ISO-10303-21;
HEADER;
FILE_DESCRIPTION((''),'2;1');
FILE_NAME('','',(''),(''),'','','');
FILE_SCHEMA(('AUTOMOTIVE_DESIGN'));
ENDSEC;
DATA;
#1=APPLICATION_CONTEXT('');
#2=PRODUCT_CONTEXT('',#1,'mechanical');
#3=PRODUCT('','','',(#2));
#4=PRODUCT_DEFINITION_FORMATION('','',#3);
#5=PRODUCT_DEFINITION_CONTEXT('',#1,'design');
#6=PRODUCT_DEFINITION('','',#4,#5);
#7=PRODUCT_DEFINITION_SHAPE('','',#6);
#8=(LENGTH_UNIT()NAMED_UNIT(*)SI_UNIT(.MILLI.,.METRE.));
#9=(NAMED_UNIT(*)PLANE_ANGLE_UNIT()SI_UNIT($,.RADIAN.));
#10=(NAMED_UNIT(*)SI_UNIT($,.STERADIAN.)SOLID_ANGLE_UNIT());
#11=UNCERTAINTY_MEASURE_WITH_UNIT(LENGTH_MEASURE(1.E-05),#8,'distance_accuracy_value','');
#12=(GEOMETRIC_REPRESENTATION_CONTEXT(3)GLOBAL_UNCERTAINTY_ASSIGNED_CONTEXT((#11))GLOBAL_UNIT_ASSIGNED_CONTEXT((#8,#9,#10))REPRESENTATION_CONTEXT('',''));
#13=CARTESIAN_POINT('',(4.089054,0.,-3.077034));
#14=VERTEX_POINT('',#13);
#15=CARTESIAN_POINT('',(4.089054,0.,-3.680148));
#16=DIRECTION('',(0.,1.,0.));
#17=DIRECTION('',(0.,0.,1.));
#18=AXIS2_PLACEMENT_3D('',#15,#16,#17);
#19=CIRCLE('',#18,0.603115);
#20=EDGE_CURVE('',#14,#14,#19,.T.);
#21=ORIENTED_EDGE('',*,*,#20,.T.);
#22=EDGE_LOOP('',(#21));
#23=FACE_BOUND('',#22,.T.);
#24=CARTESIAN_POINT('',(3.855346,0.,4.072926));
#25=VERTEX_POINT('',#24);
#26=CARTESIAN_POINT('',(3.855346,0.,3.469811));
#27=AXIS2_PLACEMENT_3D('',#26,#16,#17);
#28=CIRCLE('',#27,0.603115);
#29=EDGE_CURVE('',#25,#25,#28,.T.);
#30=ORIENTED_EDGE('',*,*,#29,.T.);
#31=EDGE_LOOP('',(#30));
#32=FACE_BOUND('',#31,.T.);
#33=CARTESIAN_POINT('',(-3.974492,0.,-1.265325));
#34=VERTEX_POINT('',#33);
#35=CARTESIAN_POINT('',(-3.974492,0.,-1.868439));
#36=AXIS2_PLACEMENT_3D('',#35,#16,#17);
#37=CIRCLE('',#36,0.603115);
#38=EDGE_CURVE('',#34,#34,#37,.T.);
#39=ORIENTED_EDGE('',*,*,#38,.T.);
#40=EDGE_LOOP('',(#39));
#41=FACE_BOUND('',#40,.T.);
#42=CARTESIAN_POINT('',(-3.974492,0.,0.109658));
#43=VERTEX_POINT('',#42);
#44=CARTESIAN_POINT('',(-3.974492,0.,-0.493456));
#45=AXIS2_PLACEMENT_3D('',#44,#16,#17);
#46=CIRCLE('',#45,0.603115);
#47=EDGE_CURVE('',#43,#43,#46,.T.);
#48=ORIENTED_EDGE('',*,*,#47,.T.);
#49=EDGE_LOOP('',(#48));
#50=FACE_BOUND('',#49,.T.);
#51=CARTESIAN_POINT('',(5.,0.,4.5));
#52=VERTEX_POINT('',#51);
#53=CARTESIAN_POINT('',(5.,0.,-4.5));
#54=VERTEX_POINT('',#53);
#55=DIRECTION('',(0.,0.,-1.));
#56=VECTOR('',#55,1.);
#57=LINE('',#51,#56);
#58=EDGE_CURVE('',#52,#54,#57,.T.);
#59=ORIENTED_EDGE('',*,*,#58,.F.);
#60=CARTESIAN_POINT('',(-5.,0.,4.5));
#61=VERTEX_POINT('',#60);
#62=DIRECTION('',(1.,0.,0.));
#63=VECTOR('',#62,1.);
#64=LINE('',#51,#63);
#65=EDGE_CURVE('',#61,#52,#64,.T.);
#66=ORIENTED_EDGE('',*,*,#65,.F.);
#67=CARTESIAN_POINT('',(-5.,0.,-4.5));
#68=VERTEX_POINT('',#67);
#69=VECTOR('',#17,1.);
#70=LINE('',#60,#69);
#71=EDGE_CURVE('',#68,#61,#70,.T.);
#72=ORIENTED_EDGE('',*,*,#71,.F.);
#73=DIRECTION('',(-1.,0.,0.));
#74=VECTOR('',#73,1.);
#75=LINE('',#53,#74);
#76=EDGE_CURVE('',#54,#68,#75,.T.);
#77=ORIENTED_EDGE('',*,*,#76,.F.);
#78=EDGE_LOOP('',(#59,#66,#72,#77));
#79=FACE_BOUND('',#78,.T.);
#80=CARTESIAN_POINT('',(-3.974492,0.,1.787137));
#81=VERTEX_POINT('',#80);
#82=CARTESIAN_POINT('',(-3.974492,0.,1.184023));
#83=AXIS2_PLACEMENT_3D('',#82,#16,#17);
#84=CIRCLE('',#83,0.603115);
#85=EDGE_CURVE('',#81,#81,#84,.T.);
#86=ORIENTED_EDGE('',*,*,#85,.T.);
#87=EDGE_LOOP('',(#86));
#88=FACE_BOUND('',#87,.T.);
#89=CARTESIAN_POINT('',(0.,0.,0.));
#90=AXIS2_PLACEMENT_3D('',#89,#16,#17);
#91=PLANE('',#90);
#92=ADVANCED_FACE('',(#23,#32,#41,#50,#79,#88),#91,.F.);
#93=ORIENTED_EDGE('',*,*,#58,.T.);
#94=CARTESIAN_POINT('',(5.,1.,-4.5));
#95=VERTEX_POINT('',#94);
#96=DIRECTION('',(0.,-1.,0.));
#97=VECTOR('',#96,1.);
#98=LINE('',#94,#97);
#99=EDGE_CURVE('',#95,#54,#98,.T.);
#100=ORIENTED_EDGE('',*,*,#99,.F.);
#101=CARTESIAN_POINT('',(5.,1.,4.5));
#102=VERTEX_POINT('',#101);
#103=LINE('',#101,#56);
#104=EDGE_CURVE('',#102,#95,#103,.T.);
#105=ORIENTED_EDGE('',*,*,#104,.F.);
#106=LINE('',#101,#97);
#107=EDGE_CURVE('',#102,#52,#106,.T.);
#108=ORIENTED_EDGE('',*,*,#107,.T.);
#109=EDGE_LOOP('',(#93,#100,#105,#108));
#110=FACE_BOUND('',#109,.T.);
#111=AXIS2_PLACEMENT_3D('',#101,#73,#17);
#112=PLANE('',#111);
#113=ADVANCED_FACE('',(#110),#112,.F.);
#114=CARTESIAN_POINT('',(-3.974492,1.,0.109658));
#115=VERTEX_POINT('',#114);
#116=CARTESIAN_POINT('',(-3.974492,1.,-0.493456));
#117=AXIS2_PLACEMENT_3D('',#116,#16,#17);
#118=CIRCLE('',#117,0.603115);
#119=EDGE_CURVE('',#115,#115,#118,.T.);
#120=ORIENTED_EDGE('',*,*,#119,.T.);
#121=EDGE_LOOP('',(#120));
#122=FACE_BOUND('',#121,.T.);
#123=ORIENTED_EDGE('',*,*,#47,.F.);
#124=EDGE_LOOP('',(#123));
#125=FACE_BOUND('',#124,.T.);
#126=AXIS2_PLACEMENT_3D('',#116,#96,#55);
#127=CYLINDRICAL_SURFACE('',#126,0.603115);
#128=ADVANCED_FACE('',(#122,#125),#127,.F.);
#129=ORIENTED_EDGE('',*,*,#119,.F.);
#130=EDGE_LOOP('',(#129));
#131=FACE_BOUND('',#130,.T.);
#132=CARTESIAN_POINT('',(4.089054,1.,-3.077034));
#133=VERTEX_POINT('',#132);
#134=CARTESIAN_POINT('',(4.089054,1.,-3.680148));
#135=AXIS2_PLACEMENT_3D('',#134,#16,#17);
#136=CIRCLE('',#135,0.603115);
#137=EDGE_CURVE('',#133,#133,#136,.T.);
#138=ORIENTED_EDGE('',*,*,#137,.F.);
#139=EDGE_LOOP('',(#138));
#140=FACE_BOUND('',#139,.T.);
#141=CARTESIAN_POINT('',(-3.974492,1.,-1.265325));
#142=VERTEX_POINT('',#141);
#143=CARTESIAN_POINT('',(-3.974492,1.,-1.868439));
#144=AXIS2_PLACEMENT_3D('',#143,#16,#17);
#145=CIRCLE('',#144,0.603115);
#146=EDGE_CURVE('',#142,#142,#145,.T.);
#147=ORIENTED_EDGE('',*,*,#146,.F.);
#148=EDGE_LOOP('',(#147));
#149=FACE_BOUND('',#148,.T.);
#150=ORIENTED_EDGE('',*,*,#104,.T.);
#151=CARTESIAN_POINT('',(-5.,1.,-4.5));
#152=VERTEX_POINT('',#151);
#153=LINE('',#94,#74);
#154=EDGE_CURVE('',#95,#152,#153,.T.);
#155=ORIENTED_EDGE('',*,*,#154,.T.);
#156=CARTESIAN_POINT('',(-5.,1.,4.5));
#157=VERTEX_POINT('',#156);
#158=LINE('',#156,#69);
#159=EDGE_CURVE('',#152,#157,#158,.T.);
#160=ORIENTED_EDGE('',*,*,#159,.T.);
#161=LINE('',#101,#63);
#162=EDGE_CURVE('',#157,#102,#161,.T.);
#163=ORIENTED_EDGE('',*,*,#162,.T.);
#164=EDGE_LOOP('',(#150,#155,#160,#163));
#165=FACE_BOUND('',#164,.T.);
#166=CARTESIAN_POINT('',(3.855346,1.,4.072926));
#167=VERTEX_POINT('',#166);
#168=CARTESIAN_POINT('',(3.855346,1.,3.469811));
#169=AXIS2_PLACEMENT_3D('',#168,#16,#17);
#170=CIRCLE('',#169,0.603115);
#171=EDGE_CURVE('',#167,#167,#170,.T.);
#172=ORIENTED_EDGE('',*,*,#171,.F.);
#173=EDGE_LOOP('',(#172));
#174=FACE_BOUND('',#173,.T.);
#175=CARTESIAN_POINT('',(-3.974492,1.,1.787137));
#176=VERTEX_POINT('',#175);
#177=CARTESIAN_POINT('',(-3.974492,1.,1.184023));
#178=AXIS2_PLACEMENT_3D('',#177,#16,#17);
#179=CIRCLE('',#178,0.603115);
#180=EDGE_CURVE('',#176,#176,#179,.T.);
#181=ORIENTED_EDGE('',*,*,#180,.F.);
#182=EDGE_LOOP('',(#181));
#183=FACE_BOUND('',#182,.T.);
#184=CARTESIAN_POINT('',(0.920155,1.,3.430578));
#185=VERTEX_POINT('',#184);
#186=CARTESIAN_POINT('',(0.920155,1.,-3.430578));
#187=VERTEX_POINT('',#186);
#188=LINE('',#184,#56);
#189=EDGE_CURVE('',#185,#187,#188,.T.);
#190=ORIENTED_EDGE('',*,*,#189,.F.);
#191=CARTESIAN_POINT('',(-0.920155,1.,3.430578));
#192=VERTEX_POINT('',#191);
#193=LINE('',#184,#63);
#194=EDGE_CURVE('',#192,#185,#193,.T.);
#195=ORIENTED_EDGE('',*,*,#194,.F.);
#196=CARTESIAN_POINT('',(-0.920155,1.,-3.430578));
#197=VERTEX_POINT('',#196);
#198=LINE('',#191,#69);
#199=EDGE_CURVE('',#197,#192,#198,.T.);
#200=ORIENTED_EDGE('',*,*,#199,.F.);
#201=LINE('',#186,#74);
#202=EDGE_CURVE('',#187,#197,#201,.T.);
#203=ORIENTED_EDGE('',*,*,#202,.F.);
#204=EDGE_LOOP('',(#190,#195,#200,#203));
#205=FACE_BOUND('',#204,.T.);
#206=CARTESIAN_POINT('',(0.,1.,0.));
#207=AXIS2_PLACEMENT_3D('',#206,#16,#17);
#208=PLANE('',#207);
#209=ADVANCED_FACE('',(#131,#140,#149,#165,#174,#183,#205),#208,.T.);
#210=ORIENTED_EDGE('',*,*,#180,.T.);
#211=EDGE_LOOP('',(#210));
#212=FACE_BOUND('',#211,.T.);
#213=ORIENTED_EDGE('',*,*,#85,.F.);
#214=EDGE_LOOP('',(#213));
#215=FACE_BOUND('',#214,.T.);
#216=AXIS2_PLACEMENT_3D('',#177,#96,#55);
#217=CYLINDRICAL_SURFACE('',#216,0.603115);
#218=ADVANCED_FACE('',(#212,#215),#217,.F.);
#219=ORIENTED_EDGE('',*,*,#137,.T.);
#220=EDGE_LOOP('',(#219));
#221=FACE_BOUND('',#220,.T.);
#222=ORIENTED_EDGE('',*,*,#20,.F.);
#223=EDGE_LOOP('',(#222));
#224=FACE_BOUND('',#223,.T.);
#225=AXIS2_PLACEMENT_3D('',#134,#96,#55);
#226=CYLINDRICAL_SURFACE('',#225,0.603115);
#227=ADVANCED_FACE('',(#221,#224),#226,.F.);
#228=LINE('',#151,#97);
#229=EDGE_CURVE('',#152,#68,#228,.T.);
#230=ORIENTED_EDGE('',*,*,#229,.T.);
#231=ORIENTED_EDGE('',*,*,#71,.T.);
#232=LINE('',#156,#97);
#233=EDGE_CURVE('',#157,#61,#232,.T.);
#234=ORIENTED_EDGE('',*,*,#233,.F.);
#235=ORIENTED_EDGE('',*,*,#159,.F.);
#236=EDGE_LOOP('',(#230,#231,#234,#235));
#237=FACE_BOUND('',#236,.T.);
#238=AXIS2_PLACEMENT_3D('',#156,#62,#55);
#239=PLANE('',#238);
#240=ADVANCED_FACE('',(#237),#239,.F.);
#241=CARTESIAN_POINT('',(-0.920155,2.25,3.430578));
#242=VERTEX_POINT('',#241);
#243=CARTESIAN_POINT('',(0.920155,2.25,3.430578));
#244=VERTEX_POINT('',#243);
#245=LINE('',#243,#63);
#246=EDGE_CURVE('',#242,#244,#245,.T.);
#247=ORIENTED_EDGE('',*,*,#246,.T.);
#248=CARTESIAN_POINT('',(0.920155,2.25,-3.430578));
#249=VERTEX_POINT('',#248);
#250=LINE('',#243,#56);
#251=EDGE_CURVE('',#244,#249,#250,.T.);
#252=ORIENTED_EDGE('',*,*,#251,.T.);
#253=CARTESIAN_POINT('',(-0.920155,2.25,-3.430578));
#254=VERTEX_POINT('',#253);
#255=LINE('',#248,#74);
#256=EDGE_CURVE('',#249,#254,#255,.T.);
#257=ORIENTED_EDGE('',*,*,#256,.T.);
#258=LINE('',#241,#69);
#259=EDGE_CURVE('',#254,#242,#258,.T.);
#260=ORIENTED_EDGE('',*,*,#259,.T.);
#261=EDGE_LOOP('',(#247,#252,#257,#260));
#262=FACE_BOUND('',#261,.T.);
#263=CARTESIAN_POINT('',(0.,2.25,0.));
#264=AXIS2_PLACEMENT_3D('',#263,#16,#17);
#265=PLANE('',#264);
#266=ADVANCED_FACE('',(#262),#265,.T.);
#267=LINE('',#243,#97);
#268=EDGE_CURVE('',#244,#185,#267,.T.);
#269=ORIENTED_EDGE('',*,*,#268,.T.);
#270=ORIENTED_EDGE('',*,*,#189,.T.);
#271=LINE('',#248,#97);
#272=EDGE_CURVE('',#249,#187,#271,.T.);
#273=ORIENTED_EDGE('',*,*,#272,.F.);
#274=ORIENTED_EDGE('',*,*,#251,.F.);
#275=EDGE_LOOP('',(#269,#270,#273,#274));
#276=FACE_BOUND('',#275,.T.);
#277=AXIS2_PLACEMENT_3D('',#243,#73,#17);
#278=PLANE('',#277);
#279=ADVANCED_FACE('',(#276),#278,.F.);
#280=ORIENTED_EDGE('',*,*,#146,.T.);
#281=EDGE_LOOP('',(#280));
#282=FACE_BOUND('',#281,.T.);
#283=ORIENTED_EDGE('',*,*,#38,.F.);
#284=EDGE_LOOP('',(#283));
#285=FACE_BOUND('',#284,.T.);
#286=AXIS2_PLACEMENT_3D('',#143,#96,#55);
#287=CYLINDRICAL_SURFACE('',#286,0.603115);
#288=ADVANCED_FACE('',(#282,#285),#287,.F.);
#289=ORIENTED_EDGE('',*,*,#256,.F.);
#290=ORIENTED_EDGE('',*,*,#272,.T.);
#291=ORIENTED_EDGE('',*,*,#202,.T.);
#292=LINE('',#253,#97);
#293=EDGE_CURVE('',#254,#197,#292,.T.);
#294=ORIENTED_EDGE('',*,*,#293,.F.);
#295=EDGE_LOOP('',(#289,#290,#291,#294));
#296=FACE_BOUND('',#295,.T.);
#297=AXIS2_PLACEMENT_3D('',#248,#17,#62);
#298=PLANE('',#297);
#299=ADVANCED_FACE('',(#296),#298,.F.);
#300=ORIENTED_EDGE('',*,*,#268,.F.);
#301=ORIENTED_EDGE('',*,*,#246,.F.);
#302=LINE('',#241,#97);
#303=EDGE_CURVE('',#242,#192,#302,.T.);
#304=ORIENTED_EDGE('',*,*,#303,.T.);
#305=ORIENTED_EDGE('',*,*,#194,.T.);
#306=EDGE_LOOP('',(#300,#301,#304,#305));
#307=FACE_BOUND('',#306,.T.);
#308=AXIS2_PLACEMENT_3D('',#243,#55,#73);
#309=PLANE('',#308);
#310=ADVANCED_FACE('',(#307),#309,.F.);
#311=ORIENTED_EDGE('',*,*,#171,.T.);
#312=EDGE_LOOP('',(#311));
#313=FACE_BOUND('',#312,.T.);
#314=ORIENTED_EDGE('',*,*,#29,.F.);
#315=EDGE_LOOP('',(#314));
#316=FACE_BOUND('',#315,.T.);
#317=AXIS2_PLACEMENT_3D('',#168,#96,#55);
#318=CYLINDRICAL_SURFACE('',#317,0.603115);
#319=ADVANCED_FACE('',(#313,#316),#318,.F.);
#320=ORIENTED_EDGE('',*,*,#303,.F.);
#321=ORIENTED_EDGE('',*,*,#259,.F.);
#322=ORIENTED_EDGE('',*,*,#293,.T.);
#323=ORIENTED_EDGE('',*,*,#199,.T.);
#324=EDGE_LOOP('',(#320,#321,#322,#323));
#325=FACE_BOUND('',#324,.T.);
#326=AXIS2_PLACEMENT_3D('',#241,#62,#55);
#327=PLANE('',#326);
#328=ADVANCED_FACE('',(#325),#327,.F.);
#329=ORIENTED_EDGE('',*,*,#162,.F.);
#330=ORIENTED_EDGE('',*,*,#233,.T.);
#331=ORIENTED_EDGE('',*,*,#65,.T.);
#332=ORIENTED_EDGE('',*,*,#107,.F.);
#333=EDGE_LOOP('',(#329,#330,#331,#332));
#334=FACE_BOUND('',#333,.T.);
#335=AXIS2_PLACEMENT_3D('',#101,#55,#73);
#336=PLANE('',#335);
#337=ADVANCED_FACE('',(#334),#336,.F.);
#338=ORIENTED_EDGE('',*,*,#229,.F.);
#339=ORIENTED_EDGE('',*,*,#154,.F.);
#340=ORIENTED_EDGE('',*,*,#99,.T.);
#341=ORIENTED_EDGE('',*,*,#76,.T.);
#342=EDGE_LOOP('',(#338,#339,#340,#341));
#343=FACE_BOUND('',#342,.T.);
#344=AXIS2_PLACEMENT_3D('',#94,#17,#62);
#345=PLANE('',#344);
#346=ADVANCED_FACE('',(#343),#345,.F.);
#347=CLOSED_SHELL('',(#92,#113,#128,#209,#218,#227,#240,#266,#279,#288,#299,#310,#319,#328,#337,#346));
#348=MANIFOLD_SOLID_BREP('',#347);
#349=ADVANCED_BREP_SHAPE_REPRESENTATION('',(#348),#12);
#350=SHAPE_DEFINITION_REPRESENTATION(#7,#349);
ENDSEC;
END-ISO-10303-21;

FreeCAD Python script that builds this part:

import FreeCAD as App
import Part
import Sketcher
from FreeCAD import Vector

doc = App.newDocument("Part")
body = doc.addObject("PartDesign::Body", "Body")

sketch1 = doc.addObject("Sketcher::SketchObject", "Sketch")
body.addObject(sketch1)
sketch1.AttachmentSupport = (doc.XZ_Plane, [""])
sketch1.MapMode = "FlatFace"
sketch1.addGeometry([
    Part.LineSegment(Vector(-5, -4.5, 0), Vector(-5, 4.5, 0)),
    Part.LineSegment(Vector(-5, 4.5, 0), Vector(5, 4.5, 0)),
    Part.LineSegment(Vector(5, 4.5, 0), Vector(5, -4.5, 0)),
    Part.LineSegment(Vector(5, -4.5, 0), Vector(-5, -4.5, 0)),
    Part.Circle(Vector(-4, 1.2, 0), Vector(0, 0, 1), 0.6),
    Part.Circle(Vector(3.9, 3.5, 0), Vector(0, 0, 1), 0.6),
    Part.Circle(Vector(-4, -0.5, 0), Vector(0, 0, 1), 0.6),
    Part.Circle(Vector(-4, -1.9, 0), Vector(0, 0, 1), 0.6),
    Part.Circle(Vector(4.1, -3.7, 0), Vector(0, 0, 1), 0.6),
], False)
sketch1.addConstraint([
    Sketcher.Constraint("Coincident", 0, 2, 1, 1),
    Sketcher.Constraint("Coincident", 1, 2, 2, 1),
    Sketcher.Constraint("Coincident", 2, 2, 3, 1),
    Sketcher.Constraint("Coincident", 3, 2, 0, 1),
    Sketcher.Constraint("Vertical", 0),
    Sketcher.Constraint("Horizontal", 1),
    Sketcher.Constraint("Vertical", 2),
    Sketcher.Constraint("Horizontal", 3),
    Sketcher.Constraint("Equal", 4, 5),
    Sketcher.Constraint("Equal", 5, 6),
    Sketcher.Constraint("Equal", 6, 7),
    Sketcher.Constraint("Equal", 7, 8),
    Sketcher.Constraint("Symmetric", 0, 2, 2, 2, -1, 1),
    Sketcher.Constraint("Vertical", 4, 3, 6, 3),
    Sketcher.Constraint("Vertical", 6, 3, 7, 3),
    Sketcher.Constraint("DistanceX", 1, 1, 1, 2, 10.0),
    Sketcher.Constraint("DistanceY", 0, 1, 0, 2, 9.0),
    Sketcher.Constraint("Diameter", 4, 1.206229),
    Sketcher.Constraint("DistanceX", 4, 3, -1, 1, 3.974492),
    Sketcher.Constraint("DistanceY", -1, 1, 5, 3, 3.469811),
    Sketcher.Constraint("DistanceY", 7, 3, -1, 1, 1.868439),
    Sketcher.Constraint("DistanceY", 8, 3, -1, 1, 3.680148),
    Sketcher.Constraint("DistanceY", 4, 3, 5, 3, 2.285789),
    Sketcher.Constraint("DistanceY", 6, 3, 4, 3, 1.677479),
    Sketcher.Constraint("DistanceX", -1, 1, 5, 3, 3.855346),
    Sketcher.Constraint("DistanceX", -1, 1, 8, 3, 4.089054),
])
pad1 = doc.addObject("PartDesign::Pad", "Pad")
body.addObject(pad1)
pad1.Profile = sketch1
pad1.Length = 1
pad1.Reversed = True

sketch2 = doc.addObject("Sketcher::SketchObject", "Sketch001")
body.addObject(sketch2)
sketch2.AttachmentSupport = (doc.XZ_Plane, [""])
sketch2.MapMode = "FlatFace"
sketch2.AttachmentOffset = App.Placement(Vector(0, 0, -1), App.Rotation())
sketch2.addGeometry([
    Part.LineSegment(Vector(-0.9, -3.4, 0), Vector(-0.9, 3.4, 0)),
    Part.LineSegment(Vector(-0.9, 3.4, 0), Vector(0.9, 3.4, 0)),
    Part.LineSegment(Vector(0.9, 3.4, 0), Vector(0.9, -3.4, 0)),
    Part.LineSegment(Vector(0.9, -3.4, 0), Vector(-0.9, -3.4, 0)),
], False)
sketch2.addConstraint([
    Sketcher.Constraint("Coincident", 0, 2, 1, 1),
    Sketcher.Constraint("Coincident", 1, 2, 2, 1),
    Sketcher.Constraint("Coincident", 2, 2, 3, 1),
    Sketcher.Constraint("Coincident", 3, 2, 0, 1),
    Sketcher.Constraint("Vertical", 0),
    Sketcher.Constraint("Horizontal", 1),
    Sketcher.Constraint("Vertical", 2),
    Sketcher.Constraint("Horizontal", 3),
    Sketcher.Constraint("Symmetric", 0, 2, 2, 2, -1, 1),
    Sketcher.Constraint("DistanceX", 1, 1, 1, 2, 1.84031),
    Sketcher.Constraint("DistanceY", 0, 1, 0, 2, 6.861155),
])
pad2 = doc.addObject("PartDesign::Pad", "Pad001")
body.addObject(pad2)
pad2.Profile = sketch2
pad2.Length = 1.25
pad2.Reversed = True

doc.recompute()
